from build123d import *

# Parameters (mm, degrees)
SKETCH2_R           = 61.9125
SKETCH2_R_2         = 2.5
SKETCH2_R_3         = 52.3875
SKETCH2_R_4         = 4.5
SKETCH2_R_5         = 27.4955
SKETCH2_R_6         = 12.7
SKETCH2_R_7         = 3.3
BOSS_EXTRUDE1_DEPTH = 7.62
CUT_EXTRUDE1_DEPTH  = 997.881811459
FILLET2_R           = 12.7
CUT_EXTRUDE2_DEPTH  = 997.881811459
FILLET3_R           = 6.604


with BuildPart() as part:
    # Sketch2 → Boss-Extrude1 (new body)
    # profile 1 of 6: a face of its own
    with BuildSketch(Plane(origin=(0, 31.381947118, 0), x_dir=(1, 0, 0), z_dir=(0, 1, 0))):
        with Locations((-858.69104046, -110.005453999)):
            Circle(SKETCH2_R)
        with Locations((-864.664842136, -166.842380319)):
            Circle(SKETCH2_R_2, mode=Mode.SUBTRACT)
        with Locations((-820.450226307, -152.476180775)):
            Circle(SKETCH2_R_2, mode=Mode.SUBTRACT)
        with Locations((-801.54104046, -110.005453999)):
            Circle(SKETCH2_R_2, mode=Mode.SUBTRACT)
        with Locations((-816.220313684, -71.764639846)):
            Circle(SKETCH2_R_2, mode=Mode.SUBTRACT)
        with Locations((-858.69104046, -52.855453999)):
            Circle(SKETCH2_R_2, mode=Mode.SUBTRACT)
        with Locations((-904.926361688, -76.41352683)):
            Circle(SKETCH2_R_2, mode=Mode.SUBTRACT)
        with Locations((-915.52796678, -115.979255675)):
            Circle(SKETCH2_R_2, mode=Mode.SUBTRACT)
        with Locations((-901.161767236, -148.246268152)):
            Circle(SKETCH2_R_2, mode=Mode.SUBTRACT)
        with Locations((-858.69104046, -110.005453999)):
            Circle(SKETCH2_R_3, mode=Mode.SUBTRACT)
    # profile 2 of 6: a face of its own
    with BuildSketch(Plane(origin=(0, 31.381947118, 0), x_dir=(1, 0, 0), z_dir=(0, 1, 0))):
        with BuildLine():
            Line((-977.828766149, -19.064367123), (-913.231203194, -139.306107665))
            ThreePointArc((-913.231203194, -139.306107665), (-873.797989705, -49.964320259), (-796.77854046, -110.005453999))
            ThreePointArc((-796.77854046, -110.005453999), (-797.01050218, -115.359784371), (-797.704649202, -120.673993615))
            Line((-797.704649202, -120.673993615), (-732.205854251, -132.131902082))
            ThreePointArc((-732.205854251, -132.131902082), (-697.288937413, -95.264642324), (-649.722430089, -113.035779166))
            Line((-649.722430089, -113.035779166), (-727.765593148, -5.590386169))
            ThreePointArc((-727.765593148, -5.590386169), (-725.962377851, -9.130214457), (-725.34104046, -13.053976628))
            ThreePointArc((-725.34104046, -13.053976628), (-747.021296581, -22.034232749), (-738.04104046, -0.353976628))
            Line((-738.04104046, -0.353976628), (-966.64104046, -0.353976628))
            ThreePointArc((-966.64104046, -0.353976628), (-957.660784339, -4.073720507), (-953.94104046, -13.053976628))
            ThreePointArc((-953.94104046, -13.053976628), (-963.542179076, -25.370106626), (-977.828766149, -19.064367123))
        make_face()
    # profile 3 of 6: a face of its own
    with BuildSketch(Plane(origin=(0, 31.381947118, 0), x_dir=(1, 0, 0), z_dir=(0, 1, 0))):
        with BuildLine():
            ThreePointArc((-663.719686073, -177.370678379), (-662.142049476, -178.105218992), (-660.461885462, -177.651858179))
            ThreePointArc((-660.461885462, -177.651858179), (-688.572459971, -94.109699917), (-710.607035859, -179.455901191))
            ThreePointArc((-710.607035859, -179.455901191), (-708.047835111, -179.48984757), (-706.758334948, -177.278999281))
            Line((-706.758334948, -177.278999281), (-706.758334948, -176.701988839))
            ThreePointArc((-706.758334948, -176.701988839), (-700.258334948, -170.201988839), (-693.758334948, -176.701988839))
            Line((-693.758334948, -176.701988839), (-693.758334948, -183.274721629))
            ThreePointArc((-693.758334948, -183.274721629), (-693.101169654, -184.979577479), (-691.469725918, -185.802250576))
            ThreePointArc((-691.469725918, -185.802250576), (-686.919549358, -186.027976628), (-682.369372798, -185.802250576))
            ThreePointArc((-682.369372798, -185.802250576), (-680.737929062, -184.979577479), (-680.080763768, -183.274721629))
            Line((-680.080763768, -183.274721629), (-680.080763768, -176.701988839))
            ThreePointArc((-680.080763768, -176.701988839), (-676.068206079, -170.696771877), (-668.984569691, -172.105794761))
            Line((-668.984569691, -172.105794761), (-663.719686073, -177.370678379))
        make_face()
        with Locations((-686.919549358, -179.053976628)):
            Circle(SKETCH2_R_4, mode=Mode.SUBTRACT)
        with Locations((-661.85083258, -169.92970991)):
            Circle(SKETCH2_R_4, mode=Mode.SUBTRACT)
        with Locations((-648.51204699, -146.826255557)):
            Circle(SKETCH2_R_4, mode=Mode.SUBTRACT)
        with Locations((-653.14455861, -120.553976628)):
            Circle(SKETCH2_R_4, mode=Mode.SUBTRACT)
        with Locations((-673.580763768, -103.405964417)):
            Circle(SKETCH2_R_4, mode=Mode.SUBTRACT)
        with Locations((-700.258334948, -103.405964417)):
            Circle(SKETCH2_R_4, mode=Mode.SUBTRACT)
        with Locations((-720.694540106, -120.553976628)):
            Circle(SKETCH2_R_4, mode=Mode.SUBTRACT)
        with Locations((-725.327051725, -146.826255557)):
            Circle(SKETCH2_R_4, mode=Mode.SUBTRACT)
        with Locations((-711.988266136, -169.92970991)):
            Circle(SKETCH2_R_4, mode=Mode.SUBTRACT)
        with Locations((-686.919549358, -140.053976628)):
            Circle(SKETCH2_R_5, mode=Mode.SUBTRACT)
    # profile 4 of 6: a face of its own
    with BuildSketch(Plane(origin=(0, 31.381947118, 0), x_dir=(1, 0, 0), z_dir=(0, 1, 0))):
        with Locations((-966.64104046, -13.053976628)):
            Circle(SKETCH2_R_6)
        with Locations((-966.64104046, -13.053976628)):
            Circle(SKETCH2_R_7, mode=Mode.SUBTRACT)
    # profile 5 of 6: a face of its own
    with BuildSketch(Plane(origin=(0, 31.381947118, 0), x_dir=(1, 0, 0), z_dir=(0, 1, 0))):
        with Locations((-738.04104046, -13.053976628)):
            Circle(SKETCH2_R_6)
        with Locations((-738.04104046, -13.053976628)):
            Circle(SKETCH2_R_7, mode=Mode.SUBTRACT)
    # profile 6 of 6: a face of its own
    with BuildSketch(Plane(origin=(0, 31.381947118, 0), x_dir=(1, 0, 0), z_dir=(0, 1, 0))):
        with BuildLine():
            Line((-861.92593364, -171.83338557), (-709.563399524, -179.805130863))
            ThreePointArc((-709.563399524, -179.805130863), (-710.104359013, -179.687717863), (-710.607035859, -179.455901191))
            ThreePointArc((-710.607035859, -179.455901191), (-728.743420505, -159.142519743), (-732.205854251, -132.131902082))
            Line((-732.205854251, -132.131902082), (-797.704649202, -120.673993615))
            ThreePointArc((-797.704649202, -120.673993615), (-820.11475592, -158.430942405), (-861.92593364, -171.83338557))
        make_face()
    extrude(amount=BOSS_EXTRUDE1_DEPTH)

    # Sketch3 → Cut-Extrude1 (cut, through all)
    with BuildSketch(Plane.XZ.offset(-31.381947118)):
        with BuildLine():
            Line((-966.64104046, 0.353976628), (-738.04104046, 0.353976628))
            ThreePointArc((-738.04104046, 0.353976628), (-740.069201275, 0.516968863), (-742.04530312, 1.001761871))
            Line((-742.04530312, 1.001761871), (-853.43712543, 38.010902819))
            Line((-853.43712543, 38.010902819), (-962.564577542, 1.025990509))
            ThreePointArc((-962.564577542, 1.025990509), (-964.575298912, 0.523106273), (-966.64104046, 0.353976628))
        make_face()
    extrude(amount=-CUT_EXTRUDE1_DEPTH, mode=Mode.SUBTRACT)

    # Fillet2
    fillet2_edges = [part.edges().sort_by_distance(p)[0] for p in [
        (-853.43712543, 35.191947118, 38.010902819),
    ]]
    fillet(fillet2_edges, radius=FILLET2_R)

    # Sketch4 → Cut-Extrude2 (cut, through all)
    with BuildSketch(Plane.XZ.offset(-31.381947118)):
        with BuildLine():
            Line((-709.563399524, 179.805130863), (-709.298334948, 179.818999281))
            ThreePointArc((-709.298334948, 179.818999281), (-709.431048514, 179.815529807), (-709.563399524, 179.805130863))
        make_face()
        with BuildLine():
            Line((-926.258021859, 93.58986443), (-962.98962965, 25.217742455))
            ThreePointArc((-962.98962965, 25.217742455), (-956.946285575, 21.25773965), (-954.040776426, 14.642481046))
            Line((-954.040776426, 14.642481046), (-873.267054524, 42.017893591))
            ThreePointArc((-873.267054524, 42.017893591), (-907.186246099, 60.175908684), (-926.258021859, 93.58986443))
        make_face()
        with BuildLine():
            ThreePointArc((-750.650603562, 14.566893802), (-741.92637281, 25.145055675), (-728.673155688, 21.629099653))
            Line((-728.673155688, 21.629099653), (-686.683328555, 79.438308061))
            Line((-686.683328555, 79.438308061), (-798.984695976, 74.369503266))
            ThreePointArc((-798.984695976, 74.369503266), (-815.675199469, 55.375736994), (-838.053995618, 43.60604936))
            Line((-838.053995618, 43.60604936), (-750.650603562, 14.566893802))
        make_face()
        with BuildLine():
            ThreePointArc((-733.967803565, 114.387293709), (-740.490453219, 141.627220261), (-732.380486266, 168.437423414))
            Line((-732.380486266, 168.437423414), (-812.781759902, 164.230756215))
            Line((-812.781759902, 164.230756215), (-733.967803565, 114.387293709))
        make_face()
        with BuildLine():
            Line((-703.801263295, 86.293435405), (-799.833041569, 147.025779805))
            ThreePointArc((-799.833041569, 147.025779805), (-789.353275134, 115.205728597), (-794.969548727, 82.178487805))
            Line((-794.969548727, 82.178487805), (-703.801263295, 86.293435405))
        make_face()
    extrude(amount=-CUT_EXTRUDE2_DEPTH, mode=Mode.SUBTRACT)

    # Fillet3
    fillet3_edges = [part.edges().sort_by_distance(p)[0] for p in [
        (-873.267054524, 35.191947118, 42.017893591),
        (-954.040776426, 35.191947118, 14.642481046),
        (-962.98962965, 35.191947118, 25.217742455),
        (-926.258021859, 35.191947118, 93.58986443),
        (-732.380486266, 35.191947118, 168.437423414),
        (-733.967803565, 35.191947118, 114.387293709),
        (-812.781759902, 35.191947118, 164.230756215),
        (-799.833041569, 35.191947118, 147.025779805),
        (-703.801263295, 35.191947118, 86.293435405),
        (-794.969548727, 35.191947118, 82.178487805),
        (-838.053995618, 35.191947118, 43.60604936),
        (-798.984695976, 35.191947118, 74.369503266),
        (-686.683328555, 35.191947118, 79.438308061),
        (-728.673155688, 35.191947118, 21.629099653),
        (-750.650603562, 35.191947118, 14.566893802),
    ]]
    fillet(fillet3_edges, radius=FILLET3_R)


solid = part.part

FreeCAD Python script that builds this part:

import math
import FreeCAD as App
import Part
import Sketcher
from FreeCAD import Vector
Q = App.Units.Quantity


def edges_at(feature, points):
    """Names of the edges that pass closest to the given points."""
    edges = feature.Shape.Edges
    near = lambda p: min(range(len(edges)), key=lambda i: edges[i].distToShape(Part.Vertex(*p))[0])
    return sorted({f"Edge{near(p) + 1}" for p in points})

doc = App.newDocument("Part")
body = doc.addObject("PartDesign::Body", "Body")

# Sketch on XZ plane
sketch1 = body.newObject("Sketcher::SketchObject", "Sketch")
sketch1.AttachmentSupport = (doc.getObject("XZ_Plane"), [""])
sketch1.MapMode = "FlatFace"
sketch1.AttachmentOffset = App.Placement(Vector(0, 0, -31.381947), App.Rotation())
sketch1.addGeometry(Part.ArcOfCircle(Part.Circle(Vector(-858.7, 110, 0), Vector(0, 0, 1), 61.9), math.radians(93), math.radians(152)), False)
sketch1.addGeometry(Part.LineSegment(Vector(-861.9, 171.8, 0), Vector(-709.6, 179.8, 0)), False)
sketch1.addGeometry(Part.ArcOfCircle(Part.Circle(Vector(-709.3, 177.3, 0), Vector(0, 0, 1), 2.5), math.radians(0), math.radians(96)), False)
sketch1.addGeometry(Part.LineSegment(Vector(-706.8, 177.3, 0), Vector(-706.8, 176.7, 0)), False)
sketch1.addGeometry(Part.ArcOfCircle(Part.Circle(Vector(-700.3, 176.7, 0), Vector(0, 0, 1), 6.5), math.radians(180), math.radians(360)), False)
sketch1.addGeometry(Part.LineSegment(Vector(-693.8, 176.7, 0), Vector(-693.8, 183.3, 0)), False)
sketch1.addGeometry(Part.ArcOfCircle(Part.Circle(Vector(-691.2, 183.3, 0), Vector(0, 0, 1), 2.5), math.radians(96), math.radians(180)), False)
sketch1.addGeometry(Part.ArcOfCircle(Part.Circle(Vector(-686.9, 140.1, 0), Vector(0, 0, 1), 46), math.radians(84.32), math.radians(95.68)), False)
sketch1.addGeometry(Part.ArcOfCircle(Part.Circle(Vector(-682.6, 183.3, 0), Vector(0, 0, 1), 2.5), math.radians(0), math.radians(84)), False)
sketch1.addGeometry(Part.LineSegment(Vector(-680.1, 183.3, 0), Vector(-680.1, 176.7, 0)), False)
sketch1.addGeometry(Part.ArcOfCircle(Part.Circle(Vector(-673.6, 176.7, 0), Vector(0, 0, 1), 6.5), math.radians(180), math.radians(315)), False)
sketch1.addGeometry(Part.LineSegment(Vector(-669, 172.1, 0), Vector(-663.7, 177.4, 0)), False)
sketch1.addGeometry(Part.ArcOfCircle(Part.Circle(Vector(-661.9, 175.6, 0), Vector(0, 0, 1), 2.5), math.radians(55), math.radians(135)), False)
sketch1.addGeometry(Part.ArcOfCircle(Part.Circle(Vector(-686.9, 140.1, 0), Vector(0, 0, 1), 46), math.radians(-36), math.radians(55)), False)
sketch1.addGeometry(Part.LineSegment(Vector(-649.7, 113, 0), Vector(-727.8, 5.6, 0)), False)
sketch1.addGeometry(Part.ArcOfCircle(Part.Circle(Vector(-738, 13.1, 0), Vector(0, 0, 1), 12.7), math.radians(-90), math.radians(-36)), False)
sketch1.addGeometry(Part.LineSegment(Vector(-738, 0.4, 0), Vector(-966.6, 0.4, 0)), False)
sketch1.addGeometry(Part.ArcOfCircle(Part.Circle(Vector(-966.6, 13.1, 0), Vector(0, 0, 1), 12.7), math.radians(152), math.radians(270)), False)
sketch1.addGeometry(Part.LineSegment(Vector(-977.8, 19.1, 0), Vector(-913.2, 139.3, 0)), False)
sketch1.addGeometry(Part.Circle(Vector(-901.2, 148.2, 0), Vector(0, 0, 1), 2.5), False)
sketch1.addGeometry(Part.Circle(Vector(-864.7, 166.8, 0), Vector(0, 0, 1), 2.5), False)
sketch1.addGeometry(Part.Circle(Vector(-915.5, 116, 0), Vector(0, 0, 1), 2.5), False)
sketch1.addGeometry(Part.Circle(Vector(-858.7, 110, 0), Vector(0, 0, 1), 52.4), False)
sketch1.addGeometry(Part.Circle(Vector(-820.5, 152.5, 0), Vector(0, 0, 1), 2.5), False)
sketch1.addGeometry(Part.Circle(Vector(-801.5, 110, 0), Vector(0, 0, 1), 2.5), False)
sketch1.addGeometry(Part.Circle(Vector(-904.9, 76.4, 0), Vector(0, 0, 1), 2.5), False)
sketch1.addGeometry(Part.Circle(Vector(-858.7, 52.9, 0), Vector(0, 0, 1), 2.5), False)
sketch1.addGeometry(Part.Circle(Vector(-816.2, 71.8, 0), Vector(0, 0, 1), 2.5), False)
sketch1.addGeometry(Part.Circle(Vector(-966.6, 13.1, 0), Vector(0, 0, 1), 3.3), False)
sketch1.addGeometry(Part.Circle(Vector(-673.6, 103.4, 0), Vector(0, 0, 1), 4.5), False)
sketch1.addGeometry(Part.Circle(Vector(-700.3, 103.4, 0), Vector(0, 0, 1), 4.5), False)
sketch1.addGeometry(Part.Circle(Vector(-653.1, 120.6, 0), Vector(0, 0, 1), 4.5), False)
sketch1.addGeometry(Part.Circle(Vector(-712, 169.9, 0), Vector(0, 0, 1), 4.5), False)
sketch1.addGeometry(Part.Circle(Vector(-686.9, 179.1, 0), Vector(0, 0, 1), 4.5), False)
sketch1.addGeometry(Part.Circle(Vector(-725.3, 146.8, 0), Vector(0, 0, 1), 4.5), False)
sketch1.addGeometry(Part.Circle(Vector(-661.9, 169.9, 0), Vector(0, 0, 1), 4.5), False)
sketch1.addGeometry(Part.Circle(Vector(-648.5, 146.8, 0), Vector(0, 0, 1), 4.5), False)
sketch1.addGeometry(Part.Circle(Vector(-720.7, 120.6, 0), Vector(0, 0, 1), 4.5), False)
sketch1.addGeometry(Part.Circle(Vector(-686.9, 140.1, 0), Vector(0, 0, 1), 27.5), False)
sketch1.addGeometry(Part.Circle(Vector(-738, 13.1, 0), Vector(0, 0, 1), 3.3), False)
sketch1.addConstraint(Sketcher.Constraint("Tangent", 0, 1, 1, 1))
sketch1.addConstraint(Sketcher.Constraint("Coincident", 1, 2, 2, 2))
sketch1.addConstraint(Sketcher.Constraint("Tangent", 2, 1, 3, 1))
sketch1.addConstraint(Sketcher.Constraint("Tangent", 3, 2, 4, 1))
sketch1.addConstraint(Sketcher.Constraint("Tangent", 4, 2, 5, 1))
sketch1.addConstraint(Sketcher.Constraint("Tangent", 5, 2, 6, 2))
sketch1.addConstraint(Sketcher.Constraint("Tangent", 6, 1, 7, 2))
sketch1.addConstraint(Sketcher.Constraint("Tangent", 7, 1, 8, 2))
sketch1.addConstraint(Sketcher.Constraint("Tangent", 8, 1, 9, 1))
sketch1.addConstraint(Sketcher.Constraint("Tangent", 9, 2, 10, 1))
sketch1.addConstraint(Sketcher.Constraint("Tangent", 10, 2, 11, 1))
sketch1.addConstraint(Sketcher.Constraint("Tangent", 11, 2, 12, 2))
sketch1.addConstraint(Sketcher.Constraint("Tangent", 12, 1, 13, 2))
sketch1.addConstraint(Sketcher.Constraint("Tangent", 13, 1, 14, 1))
sketch1.addConstraint(Sketcher.Constraint("Tangent", 14, 2, 15, 2))
sketch1.addConstraint(Sketcher.Constraint("Tangent", 15, 1, 16, 1))
sketch1.addConstraint(Sketcher.Constraint("Tangent", 16, 2, 17, 2))
sketch1.addConstraint(Sketcher.Constraint("Tangent", 17, 1, 18, 1))
sketch1.addConstraint(Sketcher.Constraint("Tangent", 18, 2, 0, 2))
sketch1.addConstraint(Sketcher.Constraint("Vertical", 3))
sketch1.addConstraint(Sketcher.Constraint("Vertical", 5))
sketch1.addConstraint(Sketcher.Constraint("Vertical", 9))
sketch1.addConstraint(Sketcher.Constraint("Horizontal", 16))
sketch1.addConstraint(Sketcher.Constraint("Coincident", 13, 3, 7, 3))
sketch1.addConstraint(Sketcher.Constraint("Coincident", 22, 3, 0, 3))
sketch1.addConstraint(Sketcher.Constraint("Coincident", 28, 3, 17, 3))
sketch1.addConstraint(Sketcher.Constraint("Coincident", 38, 3, 7, 3))
sketch1.addConstraint(Sketcher.Constraint("Coincident", 39, 3, 15, 3))
sketch1.addConstraint(Sketcher.Constraint("Equal", 2, 6))
sketch1.addConstraint(Sketcher.Constraint("Equal", 6, 8))
sketch1.addConstraint(Sketcher.Constraint("Equal", 4, 10))
sketch1.addConstraint(Sketcher.Constraint("Equal", 8, 12))
sketch1.addConstraint(Sketcher.Constraint("Equal", 7, 13))
sketch1.addConstraint(Sketcher.Constraint("Equal", 15, 17))
sketch1.addConstraint(Sketcher.Constraint("Equal", 19, 20))
sketch1.addConstraint(Sketcher.Constraint("Equal", 20, 21))
sketch1.addConstraint(Sketcher.Constraint("Equal", 21, 23))
sketch1.addConstraint(Sketcher.Constraint("Equal", 23, 24))
sketch1.addConstraint(Sketcher.Constraint("Equal", 24, 25))
sketch1.addConstraint(Sketcher.Constraint("Equal", 25, 26))
sketch1.addConstraint(Sketcher.Constraint("Equal", 26, 27))
sketch1.addConstraint(Sketcher.Constraint("Equal", 29, 30))
sketch1.addConstraint(Sketcher.Constraint("Equal", 30, 31))
sketch1.addConstraint(Sketcher.Constraint("Equal", 31, 32))
sketch1.addConstraint(Sketcher.Constraint("Equal", 32, 33))
sketch1.addConstraint(Sketcher.Constraint("Equal", 33, 34))
sketch1.addConstraint(Sketcher.Constraint("Equal", 34, 35))
sketch1.addConstraint(Sketcher.Constraint("Equal", 35, 36))
sketch1.addConstraint(Sketcher.Constraint("Equal", 36, 37))
sketch1.addConstraint(Sketcher.Constraint("Equal", 28, 39))
sketch1.addConstraint(Sketcher.Constraint("Horizontal", 6, 3, 8, 3))
sketch1.addConstraint(Sketcher.Constraint("Horizontal", 4, 3, 10, 3))
sketch1.addConstraint(Sketcher.Constraint("Horizontal", 22, 3, 24, 3))
sketch1.addConstraint(Sketcher.Constraint("Horizontal", 29, 3, 30, 3))
sketch1.addConstraint(Sketcher.Constraint("Horizontal", 32, 3, 35, 3))
sketch1.addConstraint(Sketcher.Constraint("Horizontal", 34, 3, 36, 3))
sketch1.addConstraint(Sketcher.Constraint("Horizontal", 31, 3, 37, 3))
sketch1.addConstraint(Sketcher.Constraint("Vertical", 22, 3, 26, 3))
sketch1.addConstraint(Sketcher.Constraint("Vertical", 10, 3, 29, 3))
sketch1.addConstraint(Sketcher.Constraint("Vertical", 4, 3, 30, 3))
sketch1.addConstraint(Sketcher.Constraint("Vertical", 13, 3, 33, 3))
sketch1.addConstraint(Sketcher.Constraint("Radius", 2, Q("0.1 in")))
sketch1.addConstraint(Sketcher.Constraint("Radius", 15, Q("0.5 in")))
sketch1.addConstraint(Sketcher.Constraint("DistanceX", 16, 2, 16, 1, Q("9 in")))
sketch1.addConstraint(Sketcher.Constraint("Radius", 7, Q("1.81 in")))
sketch1.addConstraint(Sketcher.Constraint("Diameter", 22, Q("4.125 in")))
sketch1.addConstraint(Sketcher.Constraint("Diameter", 38, Q("2.165 in")))
sketch1.addConstraint(Sketcher.Constraint("Angle", 11, Q("45 deg")))
sketch1.addConstraint(Sketcher.Constraint("Radius", 0, Q("2.4375 in")))
sketch1.addConstraint(Sketcher.Constraint("DistanceY", 15, 3, 13, 3, Q("5 in")))
sketch1.addConstraint(Sketcher.Constraint("Diameter", 19, Q("5 mm")))
sketch1.addConstraint(Sketcher.Constraint("Diameter", 28, Q("6.6 mm")))
sketch1.addConstraint(Sketcher.Constraint("Diameter", 29, Q("9 mm")))
sketch1.addConstraint(Sketcher.Constraint("Radius", 4, Q("6.5 mm")))
sketch1.addConstraint(Sketcher.Constraint("DistanceX", 0, 3, 15, 3, Q("4.75 in")))
sketch1.addConstraint(Sketcher.Constraint("DistanceX", 0, 3, 24, 3, Q("2.25 in")))
sketch1.addConstraint(Sketcher.Constraint("DistanceY", 26, 3, 0, 3, Q("2.25 in")))
sketch1.addConstraint(Sketcher.Constraint("DistanceY", 3, 2, 3, 1, Q("0.57701 mm")))
sketch1.addConstraint(Sketcher.Constraint("DistanceY", -1, 1, 2, 3, Q("177.278999 mm")))
sketch1.addConstraint(Sketcher.Constraint("DistanceX", 1, 2, -1, 1, Q("709.5634 mm")))
sketch1.addConstraint(Sketcher.Constraint("DistanceX", 6, 3, 12, 3, Q("29.2947 mm")))
sketch1.addConstraint(Sketcher.Constraint("DistanceX", 20, 3, 0, 3, Q("5.973802 mm")))
sketch1.addConstraint(Sketcher.Constraint("DistanceX", 21, 3, 19, 3, Q("14.3662 mm")))
sketch1.addConstraint(Sketcher.Constraint("DistanceY", 0, 3, 21, 3, Q("5.973802 mm")))
sketch1.addConstraint(Sketcher.Constraint("DistanceY", 23, 3, 20, 3, Q("14.3662 mm")))
sketch1.addConstraint(Sketcher.Constraint("DistanceY", 31, 3, 13, 3, Q("19.5 mm")))
sketch1.addConstraint(Sketcher.Constraint("DistanceY", 38, 3, 33, 3, Q("39 mm")))
sketch1.addConstraint(Sketcher.Constraint("DistanceX", 39, 3, 37, 3, Q("17.3465 mm")))
sketch1.addConstraint(Sketcher.Constraint("DistanceX", 17, 1, 21, 3, Q("62.300799 mm")))
sketch1.addConstraint(Sketcher.Constraint("Distance", 11, Q("7.44567 mm")))
sketch1.addConstraint(Sketcher.Constraint("Distance", 14, Q("132.79777 mm")))
sketch1.addConstraint(Sketcher.Constraint("DistanceX", 0, 3, -1, 1, Q("858.69104 mm")))
sketch1.addConstraint(Sketcher.Constraint("DistanceY", -1, 1, 19, 3, Q("148.246268 mm")))
sketch1.addConstraint(Sketcher.Constraint("DistanceY", -1, 1, 20, 3, Q("166.84238 mm")))
sketch1.addConstraint(Sketcher.Constraint("DistanceX", 25, 3, -1, 1, Q("904.926362 mm")))
sketch1.addConstraint(Sketcher.Constraint("DistanceY", -1, 1, 27, 3, Q("71.76464 mm")))
sketch1.addConstraint(Sketcher.Constraint("DistanceX", 31, 3, -1, 1, Q("653.144559 mm")))
sketch1.addConstraint(Sketcher.Constraint("DistanceY", -1, 1, 32, 3, Q("169.92971 mm")))
sketch1.addConstraint(Sketcher.Constraint("DistanceX", 34, 3, -1, 1, Q("725.327052 mm")))
sketch1.addConstraint(Sketcher.Constraint("DistanceY", 17, 3, 21, 3, Q("102.925279 mm")))
sketch1.addConstraint(Sketcher.Constraint("DistanceX", 19, 3, 23, 3, Q("80.711541 mm")))
sketch1.addConstraint(Sketcher.Constraint("DistanceY", 25, 3, 21, 3, Q("39.565729 mm")))
sketch1.addConstraint(Sketcher.Constraint("DistanceX", 32, 3, 2, 3, Q("2.689931 mm")))
sketch1.addConstraint(Sketcher.Constraint("DistanceY", 7, 3, 34, 3, Q("6.772279 mm")))
sketch1.addConstraint(Sketcher.Constraint("DistanceX", 10, 3, 35, 3, Q("11.729931 mm")))
sketch1.addConstraint(Sketcher.Constraint("DistanceX", 31, 3, 36, 3, Q("4.632512 mm")))
sketch1.addConstraint(Sketcher.Constraint("DistanceY", 14, 2, 30, 3, Q("97.815578 mm")))
sketch1.addConstraint(Sketcher.Constraint("DistanceX", 27, 3, 14, 2, Q("88.454721 mm")))
pad1 = body.newObject("PartDesign::Pad", "Pad")
pad1.Profile = sketch1
pad1.Length = Q("0.3 in")
pad1.Reversed = True

# Sketch on XZ plane
sketch2 = body.newObject("Sketcher::SketchObject", "Sketch001")
sketch2.AttachmentSupport = (doc.getObject("XZ_Plane"), [""])
sketch2.MapMode = "FlatFace"
sketch2.AttachmentOffset = App.Placement(Vector(0, 0, -31.381947), App.Rotation())
sketch2.addGeometry(Part.LineSegment(Vector(-966.6, 0.4, 0), Vector(-738, 0.4, 0)), False)
sketch2.addGeometry(Part.ArcOfCircle(Part.Circle(Vector(-738, 13.1, 0), Vector(0, 0, 1), 12.7), math.radians(-108.38), math.radians(-90)), False)
sketch2.addGeometry(Part.LineSegment(Vector(-742, 1, 0), Vector(-853.4, 38, 0)), False)
sketch2.addGeometry(Part.LineSegment(Vector(-853.4, 38, 0), Vector(-962.6, 1, 0)), False)
sketch2.addGeometry(Part.ArcOfCircle(Part.Circle(Vector(-966.6, 13.1, 0), Vector(0, 0, 1), 12.7), math.radians(-90), math.radians(-71.28)), False)
sketch2.addConstraint(Sketcher.Constraint("Tangent", 0, 2, 1, 2))
sketch2.addConstraint(Sketcher.Constraint("Tangent", 1, 1, 2, 1))
sketch2.addConstraint(Sketcher.Constraint("Coincident", 2, 2, 3, 1))
sketch2.addConstraint(Sketcher.Constraint("Tangent", 3, 2, 4, 2))
sketch2.addConstraint(Sketcher.Constraint("Tangent", 4, 1, 0, 1))
sketch2.addConstraint(Sketcher.Constraint("Horizontal", 0))
sketch2.addConstraint(Sketcher.Constraint("Equal", 1, 4))
sketch2.addConstraint(Sketcher.Constraint("Radius", 1, Q("0.5 in")))
sketch2.addConstraint(Sketcher.Constraint("DistanceX", 0, 1, 0, 2, Q("9 in")))
sketch2.addConstraint(Sketcher.Constraint("DistanceX", 1, 3, -1, 1, Q("738.04104 mm")))
sketch2.addConstraint(Sketcher.Constraint("DistanceY", -1, 1, 1, 1, Q("1.001762 mm")))
sketch2.addConstraint(Sketcher.Constraint("DistanceY", -1, 1, 3, 2, Q("1.025991 mm")))
sketch2.addConstraint(Sketcher.Constraint("DistanceY", 1, 1, 2, 2, Q("37.009141 mm")))
pocket1 = body.newObject("PartDesign::Pocket", "Pocket")
pocket1.Profile = sketch2
pocket1.Type = "ThroughAll"
doc.recompute()

fillet = body.newObject("PartDesign::Fillet", "Fillet")
fillet.Base = (pocket1, edges_at(pocket1, [(-853.437, 35.192, 38.011)]))
fillet.Radius = Q("0.5 in")

# Sketch on XZ plane
sketch3 = body.newObject("Sketcher::SketchObject", "Sketch002")
sketch3.AttachmentSupport = (doc.getObject("XZ_Plane"), [""])
sketch3.MapMode = "FlatFace"
sketch3.AttachmentOffset = App.Placement(Vector(0, 0, -31.381947), App.Rotation())
sketch3.addGeometry(Part.LineSegment(Vector(-709.56, 179.81, 0), Vector(-709.3, 179.82, 0)), False)
sketch3.addGeometry(Part.ArcOfCircle(Part.Circle(Vector(-709.3, 177.28, 0), Vector(0, 0, 1), 2.54), math.radians(90), math.radians(95.99)), False)
sketch3.addGeometry(Part.LineSegment(Vector(-926.26, 93.59, 0), Vector(-962.99, 25.22, 0)), False)
sketch3.addGeometry(Part.ArcOfCircle(Part.Circle(Vector(-966.64, 13.05, 0), Vector(0, 0, 1), 12.7), math.radians(7), math.radians(73)), False)
sketch3.addGeometry(Part.LineSegment(Vector(-954.04, 14.64, 0), Vector(-873.27, 42.02, 0)), False)
sketch3.addGeometry(Part.ArcOfCircle(Part.Circle(Vector(-858.69, 110.01, 0), Vector(0, 0, 1), 69.53), math.radians(-166), math.radians(-102)), False)
sketch3.addGeometry(Part.ArcOfCircle(Part.Circle(Vector(-738.04, 13.05, 0), Vector(0, 0, 1), 12.7), math.radians(42), math.radians(173)), False)
sketch3.addGeometry(Part.LineSegment(Vector(-728.67, 21.63, 0), Vector(-686.68, 79.44, 0)), False)
sketch3.addGeometry(Part.LineSegment(Vector(-686.68, 79.44, 0), Vector(-798.98, 74.37, 0)), False)
sketch3.addGeometry(Part.ArcOfCircle(Part.Circle(Vector(-858.69, 110.01, 0), Vector(0, 0, 1), 69.53), math.radians(-73), math.radians(-31)), False)
sketch3.addGeometry(Part.LineSegment(Vector(-838.05, 43.61, 0), Vector(-750.65, 14.57, 0)), False)
sketch3.addGeometry(Part.ArcOfCircle(Part.Circle(Vector(-686.92, 140.05, 0), Vector(0, 0, 1), 53.59), math.radians(148), math.radians(209)), False)
sketch3.addGeometry(Part.LineSegment(Vector(-732.38, 168.44, 0), Vector(-812.78, 164.23, 0)), False)
sketch3.addGeometry(Part.LineSegment(Vector(-812.78, 164.23, 0), Vector(-733.97, 114.39, 0)), False)
sketch3.addGeometry(Part.LineSegment(Vector(-703.8, 86.29, 0), Vector(-799.83, 147.03, 0)), False)
sketch3.addGeometry(Part.ArcOfCircle(Part.Circle(Vector(-858.69, 110.01, 0), Vector(0, 0, 1), 69.53), math.radians(-24), math.radians(32)), False)
sketch3.addGeometry(Part.LineSegment(Vector(-794.97, 82.18, 0), Vector(-703.8, 86.29, 0)), False)
sketch3.addConstraint(Sketcher.Constraint("Coincident", 0, 1, 1, 2))
sketch3.addConstraint(Sketcher.Constraint("Coincident", 1, 1, 0, 2))
sketch3.addConstraint(Sketcher.Constraint("Coincident", 2, 2, 3, 2))
sketch3.addConstraint(Sketcher.Constraint("Coincident", 3, 1, 4, 1))
sketch3.addConstraint(Sketcher.Constraint("Coincident", 4, 2, 5, 2))
sketch3.addConstraint(Sketcher.Constraint("Coincident", 5, 1, 2, 1))
sketch3.addConstraint(Sketcher.Constraint("Coincident", 6, 1, 7, 1))
sketch3.addConstraint(Sketcher.Constraint("Coincident", 7, 2, 8, 1))
sketch3.addConstraint(Sketcher.Constraint("Coincident", 8, 2, 9, 2))
sketch3.addConstraint(Sketcher.Constraint("Coincident", 9, 1, 10, 1))
sketch3.addConstraint(Sketcher.Constraint("Coincident", 10, 2, 6, 2))
sketch3.addConstraint(Sketcher.Constraint("Coincident", 11, 1, 12, 1))
sketch3.addConstraint(Sketcher.Constraint("Coincident", 12, 2, 13, 1))
sketch3.addConstraint(Sketcher.Constraint("Coincident", 13, 2, 11, 2))
sketch3.addConstraint(Sketcher.Constraint("Coincident", 14, 2, 15, 2))
sketch3.addConstraint(Sketcher.Constraint("Coincident", 15, 1, 16, 1))
sketch3.addConstraint(Sketcher.Constraint("Coincident", 16, 2, 14, 1))
sketch3.addConstraint(Sketcher.Constraint("Coincident", 9, 3, 5, 3))
sketch3.addConstraint(Sketcher.Constraint("Coincident", 15, 3, 5, 3))
sketch3.addConstraint(Sketcher.Constraint("Equal", 3, 6))
sketch3.addConstraint(Sketcher.Constraint("Equal", 5, 9))
sketch3.addConstraint(Sketcher.Constraint("Equal", 9, 15))
sketch3.addConstraint(Sketcher.Constraint("Parallel", 0, 12))
sketch3.addConstraint(Sketcher.Constraint("Parallel", 13, 14))
sketch3.addConstraint(Sketcher.Constraint("Parallel", 8, 16))
sketch3.addConstraint(Sketcher.Constraint("Horizontal", 3, 3, 6, 3))
sketch3.addConstraint(Sketcher.Constraint("Radius", 1, Q("0.1 in")))
sketch3.addConstraint(Sketcher.Constraint("Radius", 3, Q("0.5 in")))
sketch3.addConstraint(Sketcher.Constraint("Radius", 11, Q("2.11 in")))
sketch3.addConstraint(Sketcher.Constraint("DistanceX", 3, 3, 6, 3, Q("9 in")))
sketch3.addConstraint(Sketcher.Constraint("DistanceY", 6, 3, 11, 3, Q("5 in")))
sketch3.addConstraint(Sketcher.Constraint("Radius", 5, Q("2.7375 in")))
sketch3.addConstraint(Sketcher.Constraint("DistanceX", 3, 3, 5, 3, Q("4.25 in")))
sketch3.addConstraint(Sketcher.Constraint("DistanceX", 11, 3, 7, 2, Q("0.0093 in")))
sketch3.addConstraint(Sketcher.Constraint("DistanceY", 9, 1, 15, 1, Q("1.5185999 in")))
sketch3.addConstraint(Sketcher.Constraint("Distance", 8, Q("112.415701 mm")))
sketch3.addConstraint(Sketcher.Constraint("Distance", 13, Q("93.252402 mm")))
sketch3.addConstraint(Sketcher.Constraint("DistanceY", -1, 1, 1, 3, Q("177.278999 mm")))
sketch3.addConstraint(Sketcher.Constraint("DistanceX", 0, 1, -1, 1, Q("709.5634 mm")))
sketch3.addConstraint(Sketcher.Constraint("DistanceY", -1, 1, 6, 1, Q("21.6291 mm")))
sketch3.addConstraint(Sketcher.Constraint("DistanceX", 4, 2, 6, 1, Q("144.593899 mm")))
sketch3.addConstraint(Sketcher.Constraint("DistanceX", 9, 1, 8, 2, Q("39.0693 mm")))
sketch3.addConstraint(Sketcher.Constraint("DistanceX", 15, 3, 14, 2, Q("58.857999 mm")))
sketch3.addConstraint(Sketcher.Constraint("Distance", 2, Q("77.614162 mm")))
sketch3.addConstraint(Sketcher.Constraint("Distance", 4, Q("85.286619 mm")))
sketch3.addConstraint(Sketcher.Constraint("Distance", 10, Q("92.10117 mm")))
sketch3.addConstraint(Sketcher.Constraint("Distance", 14, Q("113.62447 mm")))
sketch3.addConstraint(Sketcher.Constraint("DistanceX", 3, 3, -1, 1, Q("966.64104 mm")))
sketch3.addConstraint(Sketcher.Constraint("DistanceX", 11, 3, -1, 1, Q("686.919549 mm")))
sketch3.addConstraint(Sketcher.Constraint("DistanceY", -1, 1, 0, 1, Q("179.805131 mm")))
sketch3.addConstraint(Sketcher.Constraint("DistanceX", 2, 2, -1, 1, Q("962.98963 mm")))
sketch3.addConstraint(Sketcher.Constraint("DistanceY", -1, 1, 3, 1, Q("14.642481 mm")))
sketch3.addConstraint(Sketcher.Constraint("DistanceX", 5, 1, -1, 1, Q("926.258022 mm")))
sketch3.addConstraint(Sketcher.Constraint("DistanceY", -1, 1, 7, 2, Q("79.438308 mm")))
sketch3.addConstraint(Sketcher.Constraint("DistanceX", 12, 2, -1, 1, Q("812.78176 mm")))
sketch3.addConstraint(Sketcher.Constraint("DistanceX", 11, 1, 1, 3, Q("23.082151 mm")))
pocket2 = body.newObject("PartDesign::Pocket", "Pocket001")
pocket2.Profile = sketch3
pocket2.Type = "ThroughAll"
doc.recompute()

fillet2 = body.newObject("PartDesign::Fillet", "Fillet001")
fillet2.Base = (pocket2, edges_at(pocket2, [
    (-873.267, 35.192, 42.018),
    (-954.041, 35.192, 14.642),
    (-962.99, 35.192, 25.218),
    (-926.258, 35.192, 93.59),
    (-732.38, 35.192, 168.437),
    (-733.968, 35.192, 114.387),
    (-812.782, 35.192, 164.231),
    (-799.833, 35.192, 147.026),
    (-703.801, 35.192, 86.293),
    (-794.97, 35.192, 82.178),
    (-838.054, 35.192, 43.606),
    (-798.985, 35.192, 74.37),
    (-686.683, 35.192, 79.438),
    (-728.673, 35.192, 21.629),
    (-750.651, 35.192, 14.567),
]))
fillet2.Radius = Q("0.26 in")

doc.recompute()
